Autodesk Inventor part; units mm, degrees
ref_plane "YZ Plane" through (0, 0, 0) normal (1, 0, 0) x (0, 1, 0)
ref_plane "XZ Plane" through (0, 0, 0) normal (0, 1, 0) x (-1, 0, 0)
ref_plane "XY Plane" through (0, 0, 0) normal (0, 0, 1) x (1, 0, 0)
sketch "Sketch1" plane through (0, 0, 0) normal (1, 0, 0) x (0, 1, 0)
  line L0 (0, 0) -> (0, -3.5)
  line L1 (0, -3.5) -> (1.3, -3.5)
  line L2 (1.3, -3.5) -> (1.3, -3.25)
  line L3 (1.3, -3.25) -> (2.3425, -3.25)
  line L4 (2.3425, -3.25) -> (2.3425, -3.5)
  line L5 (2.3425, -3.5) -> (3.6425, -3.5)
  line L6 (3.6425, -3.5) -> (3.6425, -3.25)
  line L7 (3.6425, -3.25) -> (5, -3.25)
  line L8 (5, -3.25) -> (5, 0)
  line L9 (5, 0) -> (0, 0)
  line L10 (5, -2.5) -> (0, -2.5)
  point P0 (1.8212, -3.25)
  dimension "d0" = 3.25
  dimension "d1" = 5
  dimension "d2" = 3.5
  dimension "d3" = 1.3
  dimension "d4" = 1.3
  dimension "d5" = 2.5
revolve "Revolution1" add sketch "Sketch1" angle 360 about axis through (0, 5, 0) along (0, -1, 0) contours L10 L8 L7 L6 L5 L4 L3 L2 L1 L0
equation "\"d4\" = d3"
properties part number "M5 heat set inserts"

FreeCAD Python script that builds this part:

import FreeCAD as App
import Part
import Sketcher

V = App.Vector
Q = App.Units.Quantity

doc = App.newDocument("Part")
body = doc.addObject("PartDesign::Body", "Body")

# Sketch on YZ plane
sketch1 = body.newObject("Sketcher::SketchObject", "Sketch")
sketch1.AttachmentSupport = (doc.getObject("YZ_Plane"), [""])
sketch1.MapMode = "FlatFace"
sketch1.addGeometry([
    Part.LineSegment(V(5, -2.5, 0), V(0, -2.5, 0)),  # 0
    Part.LineSegment(V(0, -2.5, 0), V(0, -3.5, 0)),  # 1
    Part.LineSegment(V(0, -3.5, 0), V(1.3, -3.5, 0)),  # 2
    Part.LineSegment(V(1.3, -3.5, 0), V(1.3, -3.25, 0)),  # 3
    Part.LineSegment(V(1.3, -3.25, 0), V(2.34, -3.25, 0)),  # 4
    Part.LineSegment(V(2.34, -3.25, 0), V(2.34, -3.5, 0)),  # 5
    Part.LineSegment(V(2.34, -3.5, 0), V(3.64, -3.5, 0)),  # 6
    Part.LineSegment(V(3.64, -3.5, 0), V(3.64, -3.25, 0)),  # 7
    Part.LineSegment(V(3.64, -3.25, 0), V(5, -3.25, 0)),  # 8
    Part.LineSegment(V(5, -3.25, 0), V(5, -2.5, 0)),  # 9
], False)
sketch1.addConstraint([
    Sketcher.Constraint("Coincident", 0, 2, 1, 1),
    Sketcher.Constraint("Coincident", 1, 2, 2, 1),
    Sketcher.Constraint("Coincident", 2, 2, 3, 1),
    Sketcher.Constraint("Coincident", 3, 2, 4, 1),
    Sketcher.Constraint("Coincident", 4, 2, 5, 1),
    Sketcher.Constraint("Coincident", 5, 2, 6, 1),
    Sketcher.Constraint("Coincident", 6, 2, 7, 1),
    Sketcher.Constraint("Coincident", 7, 2, 8, 1),
    Sketcher.Constraint("Coincident", 8, 2, 9, 1),
    Sketcher.Constraint("Coincident", 9, 2, 0, 1),
    Sketcher.Constraint("Horizontal", 0),
    Sketcher.Constraint("Vertical", 1),
    Sketcher.Constraint("Horizontal", 2),
    Sketcher.Constraint("Vertical", 3),
    Sketcher.Constraint("Horizontal", 4),
    Sketcher.Constraint("Vertical", 5),
    Sketcher.Constraint("Horizontal", 6),
    Sketcher.Constraint("Vertical", 7),
    Sketcher.Constraint("Horizontal", 8),
    Sketcher.Constraint("Vertical", 9),
    Sketcher.Constraint("PointOnObject", 0, 2, -2),
    Sketcher.Constraint("Horizontal", 2, 2, 5, 2),
    Sketcher.Constraint("Horizontal", 4, 2, 7, 2),
    Sketcher.Constraint("Equal", 2, 6),
    Sketcher.Constraint("DistanceX", 0, 2, 0, 1, Q("5 mm")),
    Sketcher.Constraint("DistanceX", 2, 1, 2, 2, Q("1.3 mm")),
    Sketcher.Constraint("DistanceY", 0, 2, -1, 1, Q("2.5 mm")),
    Sketcher.Constraint("DistanceY", 1, 2, -1, 1, Q("3.5 mm")),
    Sketcher.Constraint("DistanceY", 3, 2, -1, 1, Q("3.25 mm")),
    Sketcher.Constraint("DistanceX", 4, 1, 4, 2, Q("1.0425 mm")),
])
revolution = body.newObject("PartDesign::Revolution", "Revolution")
revolution.Profile = sketch1
revolution.ReferenceAxis = (sketch1, ["H_Axis"])
revolution.Angle = 360

doc.recompute()
